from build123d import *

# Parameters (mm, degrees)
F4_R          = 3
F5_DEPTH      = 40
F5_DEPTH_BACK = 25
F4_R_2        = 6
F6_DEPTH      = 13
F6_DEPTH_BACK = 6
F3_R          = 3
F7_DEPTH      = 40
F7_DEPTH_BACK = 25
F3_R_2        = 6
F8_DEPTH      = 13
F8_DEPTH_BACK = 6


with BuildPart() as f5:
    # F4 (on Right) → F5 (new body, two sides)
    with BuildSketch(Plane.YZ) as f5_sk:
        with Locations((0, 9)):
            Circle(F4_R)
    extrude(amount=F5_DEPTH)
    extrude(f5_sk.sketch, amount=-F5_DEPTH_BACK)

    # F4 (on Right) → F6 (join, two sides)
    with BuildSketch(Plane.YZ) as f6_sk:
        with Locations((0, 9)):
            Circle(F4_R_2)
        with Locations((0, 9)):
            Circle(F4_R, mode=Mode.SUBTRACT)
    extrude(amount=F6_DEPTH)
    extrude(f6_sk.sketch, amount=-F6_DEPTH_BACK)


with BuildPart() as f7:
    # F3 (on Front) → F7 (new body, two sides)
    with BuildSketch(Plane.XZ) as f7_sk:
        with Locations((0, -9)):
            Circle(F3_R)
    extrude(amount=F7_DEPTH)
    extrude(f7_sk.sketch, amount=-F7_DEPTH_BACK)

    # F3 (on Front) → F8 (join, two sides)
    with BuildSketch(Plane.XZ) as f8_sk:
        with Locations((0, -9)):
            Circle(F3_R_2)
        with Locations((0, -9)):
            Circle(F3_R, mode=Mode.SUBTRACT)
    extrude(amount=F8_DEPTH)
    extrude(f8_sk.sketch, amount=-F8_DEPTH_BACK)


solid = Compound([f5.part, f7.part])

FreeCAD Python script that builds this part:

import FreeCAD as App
import Part
import Sketcher

doc = App.newDocument("Part")
params = doc.addObject("Spreadsheet::Sheet", "Params")
for row, (alias, value) in enumerate([
    ("sketch1_diameter", "6 mm"),
    ("pad1_length", "40 mm"),
    ("pad1_length2", "25 mm"),
    ("sketch2_diameter", "12 mm"),
    ("sketch2_diameter2", "6 mm"),
    ("pad2_length", "13 mm"),
    ("pad2_length2", "6 mm"),
    ("sketch3_diameter", "6 mm"),
    ("pad3_length", "40 mm"),
    ("pad3_length2", "25 mm"),
    ("sketch4_diameter", "12 mm"),
    ("sketch4_diameter2", "6 mm"),
    ("pad4_length", "13 mm"),
    ("pad4_length2", "6 mm"),
], start=1):
    params.set(f"A{row}", alias)
    params.set(f"B{row}", "=" + value)
    params.setAlias(f"B{row}", alias)

body = doc.addObject("PartDesign::Body", "Body")

# Sketch on YZ plane
sketch1 = body.newObject("Sketcher::SketchObject", "Sketch")
sketch1.AttachmentSupport = (doc.getObject("YZ_Plane"), [""])
sketch1.MapMode = "FlatFace"
sketch1.addGeometry(Part.Circle(App.Vector(0, 9, 0), App.Vector(0, 0, 1), 3), False)
sketch1.addConstraint(Sketcher.Constraint("PointOnObject", 0, 3, -2))
sketch1.addConstraint(Sketcher.Constraint("Diameter", 0, 6.0))
sketch1.addConstraint(Sketcher.Constraint("DistanceY", -1, 1, 0, 3, 9.0))
sketch1.setExpression("Constraints[1]", "Params.sketch1_diameter")
pad1 = body.newObject("PartDesign::Pad", "Pad")
pad1.Profile = sketch1
pad1.Type = "TwoLengths"
pad1.setExpression("Length", "Params.pad1_length")
pad1.setExpression("Length2", "Params.pad1_length2")

# Sketch on YZ plane
sketch2 = body.newObject("Sketcher::SketchObject", "Sketch001")
sketch2.AttachmentSupport = (doc.getObject("YZ_Plane"), [""])
sketch2.MapMode = "FlatFace"
sketch2.addGeometry(Part.Circle(App.Vector(0, 9, 0), App.Vector(0, 0, 1), 6), False)
sketch2.addGeometry(Part.Circle(App.Vector(0, 9, 0), App.Vector(0, 0, 1), 3), False)
sketch2.addConstraint(Sketcher.Constraint("Coincident", 1, 3, 0, 3))
sketch2.addConstraint(Sketcher.Constraint("PointOnObject", 0, 3, -2))
sketch2.addConstraint(Sketcher.Constraint("Diameter", 0, 12.0))
sketch2.addConstraint(Sketcher.Constraint("Diameter", 1, 6.0))
sketch2.addConstraint(Sketcher.Constraint("DistanceY", -1, 1, 0, 3, 9.0))
sketch2.setExpression("Constraints[2]", "Params.sketch2_diameter")
sketch2.setExpression("Constraints[3]", "Params.sketch2_diameter2")
pad2 = body.newObject("PartDesign::Pad", "Pad001")
pad2.Profile = sketch2
pad2.Type = "TwoLengths"
pad2.setExpression("Length", "Params.pad2_length")
pad2.setExpression("Length2", "Params.pad2_length2")
body2 = doc.addObject("PartDesign::Body", "Body001")

# Sketch on XZ plane
sketch3 = body2.newObject("Sketcher::SketchObject", "Sketch002")
sketch3.AttachmentSupport = (doc.getObject("XZ_Plane001"), [""])
sketch3.MapMode = "FlatFace"
sketch3.addGeometry(Part.Circle(App.Vector(0, -9, 0), App.Vector(0, 0, 1), 3), False)
sketch3.addConstraint(Sketcher.Constraint("PointOnObject", 0, 3, -2))
sketch3.addConstraint(Sketcher.Constraint("Diameter", 0, 6.0))
sketch3.addConstraint(Sketcher.Constraint("DistanceY", 0, 3, -1, 1, 9.0))
sketch3.setExpression("Constraints[1]", "Params.sketch3_diameter")
pad3 = body2.newObject("PartDesign::Pad", "Pad002")
pad3.Profile = sketch3
pad3.Type = "TwoLengths"
pad3.setExpression("Length", "Params.pad3_length")
pad3.setExpression("Length2", "Params.pad3_length2")

# Sketch on XZ plane
sketch4 = body2.newObject("Sketcher::SketchObject", "Sketch003")
sketch4.AttachmentSupport = (doc.getObject("XZ_Plane001"), [""])
sketch4.MapMode = "FlatFace"
sketch4.addGeometry(Part.Circle(App.Vector(0, -9, 0), App.Vector(0, 0, 1), 6), False)
sketch4.addGeometry(Part.Circle(App.Vector(0, -9, 0), App.Vector(0, 0, 1), 3), False)
sketch4.addConstraint(Sketcher.Constraint("Coincident", 1, 3, 0, 3))
sketch4.addConstraint(Sketcher.Constraint("PointOnObject", 0, 3, -2))
sketch4.addConstraint(Sketcher.Constraint("Diameter", 0, 12.0))
sketch4.addConstraint(Sketcher.Constraint("Diameter", 1, 6.0))
sketch4.addConstraint(Sketcher.Constraint("DistanceY", 0, 3, -1, 1, 9.0))
sketch4.setExpression("Constraints[2]", "Params.sketch4_diameter")
sketch4.setExpression("Constraints[3]", "Params.sketch4_diameter2")
pad4 = body2.newObject("PartDesign::Pad", "Pad003")
pad4.Profile = sketch4
pad4.Type = "TwoLengths"
pad4.setExpression("Length", "Params.pad4_length")
pad4.setExpression("Length2", "Params.pad4_length2")

doc.recompute()
